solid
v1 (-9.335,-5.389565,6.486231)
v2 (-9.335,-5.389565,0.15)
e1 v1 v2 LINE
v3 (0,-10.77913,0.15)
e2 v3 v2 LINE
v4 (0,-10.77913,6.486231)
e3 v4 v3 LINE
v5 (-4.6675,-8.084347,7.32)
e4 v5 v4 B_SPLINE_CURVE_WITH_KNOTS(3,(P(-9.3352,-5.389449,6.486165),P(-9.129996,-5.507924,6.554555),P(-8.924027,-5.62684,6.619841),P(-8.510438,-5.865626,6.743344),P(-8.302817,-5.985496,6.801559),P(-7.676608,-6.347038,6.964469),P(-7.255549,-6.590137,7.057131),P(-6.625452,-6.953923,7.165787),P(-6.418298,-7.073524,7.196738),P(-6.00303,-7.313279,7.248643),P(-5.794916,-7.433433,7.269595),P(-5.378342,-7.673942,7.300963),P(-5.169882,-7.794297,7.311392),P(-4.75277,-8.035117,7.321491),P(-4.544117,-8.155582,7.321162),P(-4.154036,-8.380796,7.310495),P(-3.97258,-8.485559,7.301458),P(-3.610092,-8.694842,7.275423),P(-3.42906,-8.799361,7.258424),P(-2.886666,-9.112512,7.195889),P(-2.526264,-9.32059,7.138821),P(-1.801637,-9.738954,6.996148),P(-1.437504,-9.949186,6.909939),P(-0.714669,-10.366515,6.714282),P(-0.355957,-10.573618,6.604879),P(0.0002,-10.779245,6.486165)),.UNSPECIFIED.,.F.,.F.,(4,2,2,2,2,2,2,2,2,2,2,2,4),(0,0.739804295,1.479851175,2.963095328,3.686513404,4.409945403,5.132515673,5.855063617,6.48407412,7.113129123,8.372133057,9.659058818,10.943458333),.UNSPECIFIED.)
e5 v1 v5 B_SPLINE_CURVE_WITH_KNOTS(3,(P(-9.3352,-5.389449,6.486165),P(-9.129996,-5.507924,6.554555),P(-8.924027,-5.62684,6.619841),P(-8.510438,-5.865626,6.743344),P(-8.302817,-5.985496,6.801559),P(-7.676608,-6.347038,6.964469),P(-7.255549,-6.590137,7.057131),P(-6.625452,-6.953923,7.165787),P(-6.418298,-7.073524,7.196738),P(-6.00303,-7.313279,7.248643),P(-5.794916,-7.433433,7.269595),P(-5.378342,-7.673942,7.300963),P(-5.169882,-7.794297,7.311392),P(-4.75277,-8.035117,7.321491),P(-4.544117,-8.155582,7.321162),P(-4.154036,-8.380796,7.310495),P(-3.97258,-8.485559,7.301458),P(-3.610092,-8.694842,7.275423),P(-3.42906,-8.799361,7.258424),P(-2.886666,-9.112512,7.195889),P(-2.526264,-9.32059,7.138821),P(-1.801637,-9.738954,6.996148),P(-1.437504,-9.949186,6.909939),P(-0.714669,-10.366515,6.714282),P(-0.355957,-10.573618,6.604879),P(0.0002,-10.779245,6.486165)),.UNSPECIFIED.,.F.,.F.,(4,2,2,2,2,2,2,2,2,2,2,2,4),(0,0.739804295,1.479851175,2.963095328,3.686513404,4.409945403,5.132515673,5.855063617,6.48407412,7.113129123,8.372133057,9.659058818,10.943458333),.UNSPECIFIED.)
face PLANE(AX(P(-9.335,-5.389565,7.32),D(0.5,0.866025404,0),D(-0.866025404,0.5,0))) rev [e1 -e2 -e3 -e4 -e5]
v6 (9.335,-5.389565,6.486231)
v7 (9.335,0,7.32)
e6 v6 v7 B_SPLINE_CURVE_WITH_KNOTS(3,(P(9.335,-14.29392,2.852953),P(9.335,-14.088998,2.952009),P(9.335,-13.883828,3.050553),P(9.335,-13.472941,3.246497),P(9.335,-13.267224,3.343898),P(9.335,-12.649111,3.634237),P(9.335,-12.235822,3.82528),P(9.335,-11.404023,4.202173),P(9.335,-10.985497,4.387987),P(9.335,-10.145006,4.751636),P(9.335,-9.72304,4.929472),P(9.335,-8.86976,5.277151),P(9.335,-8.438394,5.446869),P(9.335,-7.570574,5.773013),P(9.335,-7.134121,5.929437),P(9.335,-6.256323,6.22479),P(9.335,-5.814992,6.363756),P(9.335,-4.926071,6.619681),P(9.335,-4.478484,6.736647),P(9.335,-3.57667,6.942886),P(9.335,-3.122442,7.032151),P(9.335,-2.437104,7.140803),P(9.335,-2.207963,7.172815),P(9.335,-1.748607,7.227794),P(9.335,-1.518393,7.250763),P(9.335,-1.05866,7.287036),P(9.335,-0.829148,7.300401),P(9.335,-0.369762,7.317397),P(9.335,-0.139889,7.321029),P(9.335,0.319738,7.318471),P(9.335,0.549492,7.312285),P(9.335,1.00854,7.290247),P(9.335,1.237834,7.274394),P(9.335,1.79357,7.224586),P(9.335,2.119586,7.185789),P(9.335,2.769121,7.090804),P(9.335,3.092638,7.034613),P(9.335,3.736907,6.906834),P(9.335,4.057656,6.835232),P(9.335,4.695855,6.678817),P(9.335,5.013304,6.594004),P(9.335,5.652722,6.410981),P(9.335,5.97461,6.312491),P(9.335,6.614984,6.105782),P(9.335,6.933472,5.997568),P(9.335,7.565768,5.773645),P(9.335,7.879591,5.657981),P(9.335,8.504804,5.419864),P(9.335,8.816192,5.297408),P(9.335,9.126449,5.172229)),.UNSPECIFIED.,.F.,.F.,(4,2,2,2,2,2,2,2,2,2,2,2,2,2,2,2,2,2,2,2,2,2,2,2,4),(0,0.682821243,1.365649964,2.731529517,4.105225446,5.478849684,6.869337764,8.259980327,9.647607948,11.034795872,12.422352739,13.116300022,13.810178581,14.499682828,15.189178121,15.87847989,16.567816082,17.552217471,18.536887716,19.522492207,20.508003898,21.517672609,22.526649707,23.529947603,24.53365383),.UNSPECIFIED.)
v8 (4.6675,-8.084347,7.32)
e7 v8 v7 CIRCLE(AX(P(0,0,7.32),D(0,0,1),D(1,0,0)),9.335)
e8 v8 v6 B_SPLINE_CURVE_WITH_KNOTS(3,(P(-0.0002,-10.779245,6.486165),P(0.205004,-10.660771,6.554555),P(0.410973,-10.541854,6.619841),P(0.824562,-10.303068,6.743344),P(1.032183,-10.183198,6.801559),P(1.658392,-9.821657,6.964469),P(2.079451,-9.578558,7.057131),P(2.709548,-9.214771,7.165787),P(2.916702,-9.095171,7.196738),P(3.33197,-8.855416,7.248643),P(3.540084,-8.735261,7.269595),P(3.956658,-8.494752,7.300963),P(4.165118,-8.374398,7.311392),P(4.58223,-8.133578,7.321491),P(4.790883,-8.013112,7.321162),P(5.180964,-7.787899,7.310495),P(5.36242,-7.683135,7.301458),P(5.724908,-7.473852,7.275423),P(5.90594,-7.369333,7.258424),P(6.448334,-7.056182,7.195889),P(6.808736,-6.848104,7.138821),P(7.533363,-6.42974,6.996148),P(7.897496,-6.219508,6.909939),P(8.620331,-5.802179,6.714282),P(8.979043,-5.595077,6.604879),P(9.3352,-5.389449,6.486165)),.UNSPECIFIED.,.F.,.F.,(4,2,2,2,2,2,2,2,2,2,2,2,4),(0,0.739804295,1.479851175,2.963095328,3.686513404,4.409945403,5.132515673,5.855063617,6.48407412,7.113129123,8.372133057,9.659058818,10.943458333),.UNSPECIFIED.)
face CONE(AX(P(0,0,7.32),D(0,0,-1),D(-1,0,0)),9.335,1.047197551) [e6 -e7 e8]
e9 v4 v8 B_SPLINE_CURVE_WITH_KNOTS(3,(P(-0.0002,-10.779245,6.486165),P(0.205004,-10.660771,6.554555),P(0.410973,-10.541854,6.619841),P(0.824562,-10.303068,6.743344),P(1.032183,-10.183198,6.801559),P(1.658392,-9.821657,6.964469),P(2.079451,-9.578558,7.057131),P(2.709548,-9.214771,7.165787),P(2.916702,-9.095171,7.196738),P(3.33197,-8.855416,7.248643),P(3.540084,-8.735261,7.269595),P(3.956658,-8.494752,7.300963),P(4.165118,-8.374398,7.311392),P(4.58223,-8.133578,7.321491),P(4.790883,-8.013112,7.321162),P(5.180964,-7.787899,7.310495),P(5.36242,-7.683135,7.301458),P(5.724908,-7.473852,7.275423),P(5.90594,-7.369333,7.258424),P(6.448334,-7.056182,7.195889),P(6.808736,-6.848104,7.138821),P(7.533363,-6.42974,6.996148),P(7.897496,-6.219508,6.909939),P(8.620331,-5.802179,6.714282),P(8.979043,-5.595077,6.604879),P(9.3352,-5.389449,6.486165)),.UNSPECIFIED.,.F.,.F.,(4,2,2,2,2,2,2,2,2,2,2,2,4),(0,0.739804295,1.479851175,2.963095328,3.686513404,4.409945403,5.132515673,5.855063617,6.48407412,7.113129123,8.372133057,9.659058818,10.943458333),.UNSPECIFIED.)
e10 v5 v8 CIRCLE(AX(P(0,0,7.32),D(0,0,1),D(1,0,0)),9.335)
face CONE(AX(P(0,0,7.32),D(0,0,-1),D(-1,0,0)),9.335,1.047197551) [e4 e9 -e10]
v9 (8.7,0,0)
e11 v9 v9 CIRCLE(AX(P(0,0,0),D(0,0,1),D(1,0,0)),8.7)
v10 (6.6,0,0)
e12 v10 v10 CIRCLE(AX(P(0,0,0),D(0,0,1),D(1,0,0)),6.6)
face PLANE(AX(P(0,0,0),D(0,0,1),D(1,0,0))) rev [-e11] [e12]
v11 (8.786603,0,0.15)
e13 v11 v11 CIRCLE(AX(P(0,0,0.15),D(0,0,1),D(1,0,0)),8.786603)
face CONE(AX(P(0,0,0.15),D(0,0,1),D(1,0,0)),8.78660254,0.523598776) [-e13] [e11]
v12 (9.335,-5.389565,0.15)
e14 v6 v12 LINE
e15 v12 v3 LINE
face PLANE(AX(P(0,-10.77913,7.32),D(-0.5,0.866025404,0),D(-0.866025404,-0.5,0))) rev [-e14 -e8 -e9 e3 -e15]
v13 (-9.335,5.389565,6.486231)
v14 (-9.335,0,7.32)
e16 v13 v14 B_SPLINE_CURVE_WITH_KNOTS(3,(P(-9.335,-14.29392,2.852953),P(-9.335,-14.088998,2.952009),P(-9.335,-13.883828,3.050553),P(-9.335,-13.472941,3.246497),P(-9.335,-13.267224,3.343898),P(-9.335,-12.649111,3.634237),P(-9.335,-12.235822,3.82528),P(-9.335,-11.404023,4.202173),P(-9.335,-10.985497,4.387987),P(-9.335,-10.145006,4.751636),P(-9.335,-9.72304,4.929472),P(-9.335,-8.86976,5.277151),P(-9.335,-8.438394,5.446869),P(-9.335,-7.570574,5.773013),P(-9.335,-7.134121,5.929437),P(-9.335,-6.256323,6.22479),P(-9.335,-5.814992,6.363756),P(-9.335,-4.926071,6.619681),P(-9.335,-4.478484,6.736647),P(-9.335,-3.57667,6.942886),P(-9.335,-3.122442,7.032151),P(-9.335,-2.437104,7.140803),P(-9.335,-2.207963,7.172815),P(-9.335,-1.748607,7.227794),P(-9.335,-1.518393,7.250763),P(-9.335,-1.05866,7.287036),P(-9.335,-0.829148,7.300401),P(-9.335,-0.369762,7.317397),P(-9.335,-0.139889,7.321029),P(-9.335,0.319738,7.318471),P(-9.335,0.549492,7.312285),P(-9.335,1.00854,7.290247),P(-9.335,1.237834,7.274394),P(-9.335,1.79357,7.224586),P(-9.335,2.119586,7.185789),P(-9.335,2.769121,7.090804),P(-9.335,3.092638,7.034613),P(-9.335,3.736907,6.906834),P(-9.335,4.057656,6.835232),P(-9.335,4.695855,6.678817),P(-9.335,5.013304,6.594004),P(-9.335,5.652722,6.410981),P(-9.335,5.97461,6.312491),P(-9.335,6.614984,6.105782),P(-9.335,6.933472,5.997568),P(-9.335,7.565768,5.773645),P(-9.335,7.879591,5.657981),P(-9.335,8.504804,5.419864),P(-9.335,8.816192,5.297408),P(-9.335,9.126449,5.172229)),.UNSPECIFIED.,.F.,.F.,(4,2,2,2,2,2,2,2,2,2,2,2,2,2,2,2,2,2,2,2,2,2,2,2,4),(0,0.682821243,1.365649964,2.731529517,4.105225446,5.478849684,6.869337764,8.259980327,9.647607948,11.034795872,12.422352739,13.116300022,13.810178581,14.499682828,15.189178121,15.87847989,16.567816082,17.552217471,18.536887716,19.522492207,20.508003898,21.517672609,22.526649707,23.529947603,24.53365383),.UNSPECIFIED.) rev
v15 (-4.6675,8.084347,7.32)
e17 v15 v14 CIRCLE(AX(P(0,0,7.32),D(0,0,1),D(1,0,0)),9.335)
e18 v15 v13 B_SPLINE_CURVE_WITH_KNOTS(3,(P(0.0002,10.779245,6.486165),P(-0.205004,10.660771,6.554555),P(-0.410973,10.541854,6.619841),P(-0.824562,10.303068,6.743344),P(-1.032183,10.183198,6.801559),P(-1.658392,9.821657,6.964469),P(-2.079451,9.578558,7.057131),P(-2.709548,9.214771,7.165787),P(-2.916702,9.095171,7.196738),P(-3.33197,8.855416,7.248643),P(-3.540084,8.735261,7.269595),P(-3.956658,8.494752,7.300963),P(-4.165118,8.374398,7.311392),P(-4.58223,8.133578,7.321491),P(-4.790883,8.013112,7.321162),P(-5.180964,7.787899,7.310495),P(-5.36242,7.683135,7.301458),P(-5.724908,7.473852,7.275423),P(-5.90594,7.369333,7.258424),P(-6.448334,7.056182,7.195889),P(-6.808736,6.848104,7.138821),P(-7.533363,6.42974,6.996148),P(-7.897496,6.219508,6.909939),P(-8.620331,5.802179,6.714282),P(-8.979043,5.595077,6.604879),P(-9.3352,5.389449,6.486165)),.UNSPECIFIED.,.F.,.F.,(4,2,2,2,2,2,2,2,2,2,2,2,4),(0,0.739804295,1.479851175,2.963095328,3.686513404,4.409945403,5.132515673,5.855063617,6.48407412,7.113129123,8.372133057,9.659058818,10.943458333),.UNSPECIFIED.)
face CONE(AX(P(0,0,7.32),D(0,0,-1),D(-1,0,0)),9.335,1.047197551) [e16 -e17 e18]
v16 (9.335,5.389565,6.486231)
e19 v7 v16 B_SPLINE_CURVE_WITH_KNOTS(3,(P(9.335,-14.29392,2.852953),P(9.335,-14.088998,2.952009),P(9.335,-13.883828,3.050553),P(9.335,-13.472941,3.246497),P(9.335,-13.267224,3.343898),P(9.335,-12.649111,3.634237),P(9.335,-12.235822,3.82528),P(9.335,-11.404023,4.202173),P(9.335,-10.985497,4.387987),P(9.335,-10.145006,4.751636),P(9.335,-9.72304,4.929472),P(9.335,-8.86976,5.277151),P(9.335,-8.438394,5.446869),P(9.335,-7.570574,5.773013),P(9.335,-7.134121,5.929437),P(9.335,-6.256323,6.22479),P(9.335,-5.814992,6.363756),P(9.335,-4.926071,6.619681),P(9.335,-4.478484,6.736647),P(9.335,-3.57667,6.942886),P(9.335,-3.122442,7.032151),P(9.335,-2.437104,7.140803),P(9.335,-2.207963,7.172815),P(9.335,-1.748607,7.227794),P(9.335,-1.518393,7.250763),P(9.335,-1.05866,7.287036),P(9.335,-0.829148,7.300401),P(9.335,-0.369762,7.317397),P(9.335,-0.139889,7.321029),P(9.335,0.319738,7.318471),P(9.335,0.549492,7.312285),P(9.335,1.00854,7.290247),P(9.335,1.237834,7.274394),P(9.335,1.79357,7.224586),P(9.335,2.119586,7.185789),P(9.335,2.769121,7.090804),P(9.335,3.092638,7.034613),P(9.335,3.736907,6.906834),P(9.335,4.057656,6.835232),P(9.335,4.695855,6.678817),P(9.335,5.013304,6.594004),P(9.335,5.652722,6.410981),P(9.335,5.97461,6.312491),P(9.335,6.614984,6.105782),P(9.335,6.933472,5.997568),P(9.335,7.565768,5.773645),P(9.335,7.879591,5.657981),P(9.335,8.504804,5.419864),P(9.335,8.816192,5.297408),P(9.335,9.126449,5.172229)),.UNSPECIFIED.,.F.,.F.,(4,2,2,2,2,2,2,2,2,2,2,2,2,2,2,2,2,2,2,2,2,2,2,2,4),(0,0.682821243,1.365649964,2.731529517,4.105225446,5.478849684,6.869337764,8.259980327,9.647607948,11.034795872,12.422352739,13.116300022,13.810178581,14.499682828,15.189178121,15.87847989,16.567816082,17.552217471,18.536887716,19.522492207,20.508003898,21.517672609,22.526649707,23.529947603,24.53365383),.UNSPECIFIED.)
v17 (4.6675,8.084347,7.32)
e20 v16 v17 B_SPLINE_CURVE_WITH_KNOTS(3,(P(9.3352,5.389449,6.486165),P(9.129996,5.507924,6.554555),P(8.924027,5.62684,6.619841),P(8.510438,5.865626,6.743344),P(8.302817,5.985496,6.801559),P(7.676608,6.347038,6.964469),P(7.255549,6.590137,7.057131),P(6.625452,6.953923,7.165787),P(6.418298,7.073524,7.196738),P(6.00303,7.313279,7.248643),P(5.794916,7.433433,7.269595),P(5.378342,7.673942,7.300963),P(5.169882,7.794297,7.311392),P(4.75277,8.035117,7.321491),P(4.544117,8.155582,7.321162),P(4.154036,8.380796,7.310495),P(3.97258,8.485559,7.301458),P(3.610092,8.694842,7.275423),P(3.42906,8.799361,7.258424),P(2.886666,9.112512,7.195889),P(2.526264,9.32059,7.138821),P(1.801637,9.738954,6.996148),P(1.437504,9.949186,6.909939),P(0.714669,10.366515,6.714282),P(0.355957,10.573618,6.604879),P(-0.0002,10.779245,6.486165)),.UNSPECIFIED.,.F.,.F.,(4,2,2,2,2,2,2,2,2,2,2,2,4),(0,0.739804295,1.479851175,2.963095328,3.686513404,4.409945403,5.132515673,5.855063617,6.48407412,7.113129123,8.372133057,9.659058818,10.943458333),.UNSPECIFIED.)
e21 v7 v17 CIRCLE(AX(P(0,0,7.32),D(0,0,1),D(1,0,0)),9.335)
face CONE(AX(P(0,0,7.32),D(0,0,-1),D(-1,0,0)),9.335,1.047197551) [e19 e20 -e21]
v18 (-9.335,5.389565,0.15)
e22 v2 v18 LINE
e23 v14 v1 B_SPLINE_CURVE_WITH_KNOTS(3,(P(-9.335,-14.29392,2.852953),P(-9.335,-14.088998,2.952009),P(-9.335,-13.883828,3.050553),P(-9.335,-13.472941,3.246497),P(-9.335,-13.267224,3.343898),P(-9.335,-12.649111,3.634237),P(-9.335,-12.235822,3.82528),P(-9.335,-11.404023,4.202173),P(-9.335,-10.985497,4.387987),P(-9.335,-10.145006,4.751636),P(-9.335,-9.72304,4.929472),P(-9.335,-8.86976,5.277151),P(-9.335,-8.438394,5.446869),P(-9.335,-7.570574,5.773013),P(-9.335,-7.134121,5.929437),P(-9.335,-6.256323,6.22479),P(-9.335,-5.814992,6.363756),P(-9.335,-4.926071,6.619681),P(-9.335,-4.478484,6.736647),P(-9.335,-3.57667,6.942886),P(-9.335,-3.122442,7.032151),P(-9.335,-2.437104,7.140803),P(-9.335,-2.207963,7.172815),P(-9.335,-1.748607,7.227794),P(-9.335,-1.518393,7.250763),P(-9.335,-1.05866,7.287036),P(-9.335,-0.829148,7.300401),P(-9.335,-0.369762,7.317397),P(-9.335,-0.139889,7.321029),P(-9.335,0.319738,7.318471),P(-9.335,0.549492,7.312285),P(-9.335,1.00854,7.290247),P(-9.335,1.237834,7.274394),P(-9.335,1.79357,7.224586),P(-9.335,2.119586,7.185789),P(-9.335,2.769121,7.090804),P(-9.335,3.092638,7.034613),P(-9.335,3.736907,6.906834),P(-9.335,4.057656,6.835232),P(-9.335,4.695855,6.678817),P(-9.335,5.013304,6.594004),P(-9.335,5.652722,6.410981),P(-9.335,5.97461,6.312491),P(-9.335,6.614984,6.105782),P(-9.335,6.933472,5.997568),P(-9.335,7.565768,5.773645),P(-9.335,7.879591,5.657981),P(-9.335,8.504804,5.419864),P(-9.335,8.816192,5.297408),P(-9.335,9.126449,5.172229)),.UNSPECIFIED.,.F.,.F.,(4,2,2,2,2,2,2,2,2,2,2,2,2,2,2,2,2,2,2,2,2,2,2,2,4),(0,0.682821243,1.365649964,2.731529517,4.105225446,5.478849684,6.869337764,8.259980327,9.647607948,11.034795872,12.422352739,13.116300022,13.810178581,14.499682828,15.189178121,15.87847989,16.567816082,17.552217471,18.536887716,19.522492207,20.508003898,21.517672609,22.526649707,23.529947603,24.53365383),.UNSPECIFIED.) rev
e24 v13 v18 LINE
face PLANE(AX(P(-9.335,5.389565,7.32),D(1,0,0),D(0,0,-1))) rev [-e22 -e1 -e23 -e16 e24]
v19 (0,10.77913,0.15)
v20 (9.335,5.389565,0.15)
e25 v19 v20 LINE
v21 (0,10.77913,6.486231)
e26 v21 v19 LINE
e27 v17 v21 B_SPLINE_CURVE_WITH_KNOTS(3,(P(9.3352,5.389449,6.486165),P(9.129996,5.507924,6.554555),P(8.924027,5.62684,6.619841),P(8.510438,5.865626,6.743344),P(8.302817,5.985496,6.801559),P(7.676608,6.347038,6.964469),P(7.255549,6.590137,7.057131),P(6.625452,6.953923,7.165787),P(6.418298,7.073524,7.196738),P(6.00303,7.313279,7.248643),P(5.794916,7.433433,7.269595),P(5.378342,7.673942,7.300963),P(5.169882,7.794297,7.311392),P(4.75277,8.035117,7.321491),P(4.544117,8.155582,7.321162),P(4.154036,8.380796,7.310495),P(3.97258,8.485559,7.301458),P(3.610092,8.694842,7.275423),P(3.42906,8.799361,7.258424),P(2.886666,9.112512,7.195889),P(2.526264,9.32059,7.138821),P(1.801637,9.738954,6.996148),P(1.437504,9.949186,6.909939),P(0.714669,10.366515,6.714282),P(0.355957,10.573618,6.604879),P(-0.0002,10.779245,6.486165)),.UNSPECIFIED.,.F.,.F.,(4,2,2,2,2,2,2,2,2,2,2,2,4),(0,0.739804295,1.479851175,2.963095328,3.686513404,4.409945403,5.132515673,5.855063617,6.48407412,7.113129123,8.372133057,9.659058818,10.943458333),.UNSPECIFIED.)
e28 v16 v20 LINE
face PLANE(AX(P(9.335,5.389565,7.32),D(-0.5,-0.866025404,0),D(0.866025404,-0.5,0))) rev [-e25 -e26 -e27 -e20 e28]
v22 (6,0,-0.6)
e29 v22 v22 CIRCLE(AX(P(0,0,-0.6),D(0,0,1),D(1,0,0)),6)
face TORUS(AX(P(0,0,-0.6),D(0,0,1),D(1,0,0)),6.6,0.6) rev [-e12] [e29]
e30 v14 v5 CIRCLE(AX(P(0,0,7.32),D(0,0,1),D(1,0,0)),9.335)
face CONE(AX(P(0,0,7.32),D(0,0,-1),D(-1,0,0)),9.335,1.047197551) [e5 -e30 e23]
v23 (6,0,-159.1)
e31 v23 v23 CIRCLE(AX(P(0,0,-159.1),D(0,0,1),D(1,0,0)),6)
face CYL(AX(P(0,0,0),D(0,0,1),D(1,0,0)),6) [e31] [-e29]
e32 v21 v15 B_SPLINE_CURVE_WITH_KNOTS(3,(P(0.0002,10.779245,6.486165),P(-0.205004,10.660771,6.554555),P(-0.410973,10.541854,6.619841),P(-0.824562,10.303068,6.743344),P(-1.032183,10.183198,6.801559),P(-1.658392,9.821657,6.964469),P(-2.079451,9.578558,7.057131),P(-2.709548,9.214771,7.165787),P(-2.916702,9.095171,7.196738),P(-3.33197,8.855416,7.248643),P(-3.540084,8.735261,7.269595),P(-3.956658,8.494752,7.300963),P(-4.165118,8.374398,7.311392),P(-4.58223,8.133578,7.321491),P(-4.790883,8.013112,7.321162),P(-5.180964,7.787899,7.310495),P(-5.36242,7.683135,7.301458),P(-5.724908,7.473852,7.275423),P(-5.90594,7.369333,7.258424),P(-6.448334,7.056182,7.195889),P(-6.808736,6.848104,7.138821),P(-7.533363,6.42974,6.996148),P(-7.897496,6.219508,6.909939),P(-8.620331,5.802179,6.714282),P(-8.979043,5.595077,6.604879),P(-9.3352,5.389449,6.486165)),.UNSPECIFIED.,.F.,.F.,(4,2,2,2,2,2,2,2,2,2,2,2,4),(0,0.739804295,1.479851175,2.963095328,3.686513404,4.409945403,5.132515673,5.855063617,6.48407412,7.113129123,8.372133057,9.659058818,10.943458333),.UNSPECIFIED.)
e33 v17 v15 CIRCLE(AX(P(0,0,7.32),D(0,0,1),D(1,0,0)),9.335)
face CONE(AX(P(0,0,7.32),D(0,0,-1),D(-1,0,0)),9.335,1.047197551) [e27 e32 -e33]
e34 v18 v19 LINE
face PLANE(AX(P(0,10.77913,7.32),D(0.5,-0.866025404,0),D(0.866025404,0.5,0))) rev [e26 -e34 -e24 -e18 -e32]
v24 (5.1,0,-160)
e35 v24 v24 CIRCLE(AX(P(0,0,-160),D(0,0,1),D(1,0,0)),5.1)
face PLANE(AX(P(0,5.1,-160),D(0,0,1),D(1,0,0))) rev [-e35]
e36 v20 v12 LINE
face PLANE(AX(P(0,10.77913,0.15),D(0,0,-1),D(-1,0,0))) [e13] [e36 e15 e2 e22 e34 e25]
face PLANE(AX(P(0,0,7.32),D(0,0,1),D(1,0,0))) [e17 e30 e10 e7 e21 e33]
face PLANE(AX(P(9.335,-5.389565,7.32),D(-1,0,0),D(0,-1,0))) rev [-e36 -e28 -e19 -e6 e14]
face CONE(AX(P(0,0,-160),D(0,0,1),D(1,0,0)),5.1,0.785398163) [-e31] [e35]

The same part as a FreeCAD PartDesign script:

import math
import FreeCAD as App
import Part
import Sketcher

V = App.Vector
Q = App.Units.Quantity


def add_polygon(sketch, points):
    """Adds a closed chain of lines whose ends are joined by coincident constraints."""
    first, n = sketch.GeometryCount, len(points)
    for a, b in zip(points, points[1:] + points[:1]):
        sketch.addGeometry(Part.LineSegment(App.Vector(*a, 0), App.Vector(*b, 0)), False)
    for i in range(n):
        sketch.addConstraint(Sketcher.Constraint("Coincident", first + i, 2, first + (i + 1) % n, 1))

doc = App.newDocument("Part")
body = doc.addObject("PartDesign::Body", "Body")

sketch1 = body.newObject("Sketcher::SketchObject", "Sketch")
sketch1.AttachmentSupport = (doc.getObject("XY_Plane"), [""])
sketch1.MapMode = "FlatFace"
add_polygon(sketch1, [(0, 11), (-9, 5), (-9, -5), (0, -11), (9, -5), (9, 5)])
sketch1.addConstraint([
    Sketcher.Constraint("Vertical", 1),
    Sketcher.Constraint("Vertical", 4),
    Sketcher.Constraint("Symmetric", 0, 2, 3, 2, -1, 1),
    Sketcher.Constraint("Symmetric", 2, 2, 5, 2, -1, 1),
    Sketcher.Constraint("PointOnObject", 2, 2, -2),
    Sketcher.Constraint("Parallel", 2, 5),
    Sketcher.Constraint("Horizontal", 1, 2, 3, 2),
    Sketcher.Constraint("Angle", 0, Q("-150 deg")),
    Sketcher.Constraint("DistanceX", 1, 2, 3, 2, Q("18.67 mm")),
    Sketcher.Constraint("DistanceY", 1, 2, 1, 1, Q("10.77913 mm")),
])
pad1 = body.newObject("PartDesign::Pad", "Pad")
pad1.Profile = sketch1
pad1.Length = 7.32

sketch2 = body.newObject("Sketcher::SketchObject", "Sketch001")
sketch2.AttachmentSupport = (doc.getObject("YZ_Plane"), [""])
sketch2.MapMode = "FlatFace"
sketch2.addGeometry([
    Part.LineSegment(V(6.6, 0, 0), V(0, 0, 0)),
    Part.LineSegment(V(0, 0, 0), V(0, -160, 0)),
    Part.LineSegment(V(0, -160, 0), V(5.1, -160, 0)),
    Part.LineSegment(V(5.1, -160, 0), V(6, -159.1, 0)),
    Part.LineSegment(V(6, -159.1, 0), V(6, -0.6, 0)),
    Part.ArcOfCircle(Part.Circle(V(6.6, -0.6, 0), V(0, 0, 1), 0.6), math.radians(90), math.radians(180)),
], False)
sketch2.addConstraint([
    Sketcher.Constraint("Coincident", 0, 2, 1, 1),
    Sketcher.Constraint("Coincident", 1, 2, 2, 1),
    Sketcher.Constraint("Coincident", 2, 2, 3, 1),
    Sketcher.Constraint("Coincident", 3, 2, 4, 1),
    Sketcher.Constraint("Tangent", 4, 2, 5, 2),
    Sketcher.Constraint("Tangent", 5, 1, 0, 1),
    Sketcher.Constraint("Horizontal", 0),
    Sketcher.Constraint("Vertical", 1),
    Sketcher.Constraint("Horizontal", 2),
    Sketcher.Constraint("Vertical", 4),
    Sketcher.Constraint("Coincident", 0, 2, -1, 1),
    Sketcher.Constraint("Radius", 5, Q("0.6 mm")),
    Sketcher.Constraint("DistanceY", 1, 2, 1, 1, Q("160 mm")),
    Sketcher.Constraint("Angle", 3, Q("45 deg")),
    Sketcher.Constraint("DistanceX", 0, 2, 0, 1, Q("6.6 mm")),
    Sketcher.Constraint("DistanceX", 2, 1, 2, 2, Q("5.1 mm")),
])
revolution = body.newObject("PartDesign::Revolution", "Revolution")
revolution.Profile = sketch2
revolution.ReferenceAxis = (sketch2, ["V_Axis"])
revolution.Angle = 360

sketch3 = body.newObject("Sketcher::SketchObject", "Sketch002")
sketch3.AttachmentSupport = (doc.getObject("YZ_Plane"), [""])
sketch3.MapMode = "FlatFace"
add_polygon(sketch3, [(10.78, 6.49), (10.78, 7.32), (9.34, 7.32)])
add_polygon(sketch3, [(10.78, 0.15), (8.79, 0.15), (8.7, 0), (10.78, 0)])
sketch3.addConstraint([
    Sketcher.Constraint("Vertical", 0),
    Sketcher.Constraint("Horizontal", 1),
    Sketcher.Constraint("Horizontal", 3),
    Sketcher.Constraint("Horizontal", 5),
    Sketcher.Constraint("Vertical", 6),
    Sketcher.Constraint("PointOnObject", 4, 2, -1),
    Sketcher.Constraint("Perpendicular", 2, 4),
    Sketcher.Constraint("Vertical", 2, 2, 5, 2),
    Sketcher.Constraint("Angle", 2, Q("-30 deg")),
    Sketcher.Constraint("DistanceY", 6, 1, 6, 2, Q("0.15 mm")),
    Sketcher.Constraint("DistanceX", -1, 1, 4, 2, Q("8.7 mm")),
    Sketcher.Constraint("DistanceY", -1, 1, 0, 2, Q("7.32 mm")),
    Sketcher.Constraint("DistanceX", -1, 1, 1, 2, Q("9.335 mm")),
    Sketcher.Constraint("DistanceX", 1, 2, 1, 1, Q("1.44413 mm")),
])
groove = body.newObject("PartDesign::Groove", "Groove")
groove.Profile = sketch3
groove.ReferenceAxis = (sketch3, ["V_Axis"])
groove.Angle = 360

doc.recompute()
